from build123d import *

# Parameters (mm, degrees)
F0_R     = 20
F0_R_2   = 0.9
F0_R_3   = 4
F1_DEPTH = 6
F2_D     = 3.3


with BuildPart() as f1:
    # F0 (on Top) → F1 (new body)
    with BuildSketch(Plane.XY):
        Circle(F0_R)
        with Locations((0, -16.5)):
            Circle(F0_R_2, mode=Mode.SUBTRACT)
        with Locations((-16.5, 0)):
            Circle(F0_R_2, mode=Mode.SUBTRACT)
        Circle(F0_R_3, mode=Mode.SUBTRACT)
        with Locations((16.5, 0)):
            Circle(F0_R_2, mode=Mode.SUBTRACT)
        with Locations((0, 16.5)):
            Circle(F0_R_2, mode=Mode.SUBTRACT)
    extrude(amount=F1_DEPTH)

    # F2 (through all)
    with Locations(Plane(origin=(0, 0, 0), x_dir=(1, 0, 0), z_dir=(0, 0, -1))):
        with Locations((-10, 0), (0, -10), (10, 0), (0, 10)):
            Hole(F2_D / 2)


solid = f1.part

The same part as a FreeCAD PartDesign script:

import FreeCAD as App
import Part
import Sketcher

doc = App.newDocument("Part")
body = doc.addObject("PartDesign::Body", "Body")

sketch1 = body.newObject("Sketcher::SketchObject", "Sketch")
sketch1.AttachmentSupport = (doc.getObject("XY_Plane"), [""])
sketch1.MapMode = "FlatFace"
sketch1.addGeometry([
    Part.Circle(App.Vector(0, 0, 0), App.Vector(0, 0, 1), 20),
    Part.Circle(App.Vector(0, -16.5, 0), App.Vector(0, 0, 1), 0.9),
    Part.Circle(App.Vector(-16.5, 0, 0), App.Vector(0, 0, 1), 0.9),
    Part.Circle(App.Vector(0, 0, 0), App.Vector(0, 0, 1), 4),
    Part.Circle(App.Vector(16.5, 0, 0), App.Vector(0, 0, 1), 0.9),
    Part.Circle(App.Vector(0, 16.5, 0), App.Vector(0, 0, 1), 0.9),
], False)
sketch1.addConstraint([
    Sketcher.Constraint("Coincident", 0, 3, -1, 1),
    Sketcher.Constraint("Coincident", 3, 3, -1, 1),
    Sketcher.Constraint("Equal", 1, 2),
    Sketcher.Constraint("Equal", 2, 4),
    Sketcher.Constraint("Equal", 4, 5),
    Sketcher.Constraint("Symmetric", 2, 3, 4, 3, -1, 1),
    Sketcher.Constraint("Symmetric", 1, 3, 5, 3, -1, 1),
    Sketcher.Constraint("PointOnObject", 1, 3, -2),
    Sketcher.Constraint("PointOnObject", 2, 3, -1),
    Sketcher.Constraint("Diameter", 0, 40.0),
    Sketcher.Constraint("Diameter", 3, 8.0),
    Sketcher.Constraint("Diameter", 1, 1.8),
    Sketcher.Constraint("DistanceX", 2, 3, 4, 3, 33.0),
    Sketcher.Constraint("DistanceY", 1, 3, 5, 3, 33.0),
])
pad1 = body.newObject("PartDesign::Pad", "Pad")
pad1.Profile = sketch1
pad1.Length = 6

sketch2 = body.newObject("Sketcher::SketchObject", "Sketch001")
sketch2.AttachmentSupport = (doc.getObject("XY_Plane"), [""])
sketch2.MapMode = "FlatFace"
sketch2.addGeometry([
    Part.Circle(App.Vector(-10, 0, 0), App.Vector(0, 0, 1), 1.6),
    Part.Circle(App.Vector(0, 10, 0), App.Vector(0, 0, 1), 1.6),
    Part.Circle(App.Vector(10, 0, 0), App.Vector(0, 0, 1), 1.6),
    Part.Circle(App.Vector(0, -10, 0), App.Vector(0, 0, 1), 1.6),
], False)
sketch2.addConstraint([
    Sketcher.Constraint("Equal", 0, 1),
    Sketcher.Constraint("Equal", 1, 2),
    Sketcher.Constraint("Equal", 2, 3),
    Sketcher.Constraint("Symmetric", 0, 3, 2, 3, -1, 1),
    Sketcher.Constraint("Symmetric", 1, 3, 3, 3, -1, 1),
    Sketcher.Constraint("PointOnObject", 0, 3, -1),
    Sketcher.Constraint("PointOnObject", 1, 3, -2),
    Sketcher.Constraint("Diameter", 0, 3.3),
    Sketcher.Constraint("DistanceX", 0, 3, -1, 1, 10.0),
    Sketcher.Constraint("DistanceY", -1, 1, 1, 3, 10.0),
])
doc.recompute()
hole = body.newObject("PartDesign::Hole", "Hole")
hole.Profile = sketch2
hole.ThreadType = "None"
hole.Diameter = 3.3
hole.DepthType = "ThroughAll"
hole.Reversed = True

doc.recompute()
